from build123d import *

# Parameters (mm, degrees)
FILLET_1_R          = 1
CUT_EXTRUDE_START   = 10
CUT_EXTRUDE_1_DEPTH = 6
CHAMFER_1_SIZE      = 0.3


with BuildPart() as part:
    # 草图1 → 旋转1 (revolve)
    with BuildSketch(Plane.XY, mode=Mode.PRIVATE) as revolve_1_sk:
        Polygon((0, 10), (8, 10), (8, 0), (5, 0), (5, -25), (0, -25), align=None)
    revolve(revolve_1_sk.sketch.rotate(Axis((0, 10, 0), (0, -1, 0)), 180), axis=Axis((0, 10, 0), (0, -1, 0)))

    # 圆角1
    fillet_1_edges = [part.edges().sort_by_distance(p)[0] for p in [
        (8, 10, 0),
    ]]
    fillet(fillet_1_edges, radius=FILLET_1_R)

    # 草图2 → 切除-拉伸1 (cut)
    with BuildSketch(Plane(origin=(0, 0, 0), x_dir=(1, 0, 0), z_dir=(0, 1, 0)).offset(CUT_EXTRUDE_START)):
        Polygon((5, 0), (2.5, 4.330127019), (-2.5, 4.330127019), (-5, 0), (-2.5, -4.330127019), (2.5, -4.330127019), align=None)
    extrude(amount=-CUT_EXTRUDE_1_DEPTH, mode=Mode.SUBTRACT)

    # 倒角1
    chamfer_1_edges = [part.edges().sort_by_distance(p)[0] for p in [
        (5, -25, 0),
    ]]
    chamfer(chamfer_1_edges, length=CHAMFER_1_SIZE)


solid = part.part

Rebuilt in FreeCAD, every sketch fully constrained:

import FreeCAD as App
import Part
import Sketcher
from FreeCAD import Vector
Q = App.Units.Quantity


def edges_at(feature, points):
    """Names of the edges that pass closest to the given points."""
    edges = feature.Shape.Edges
    near = lambda p: min(range(len(edges)), key=lambda i: edges[i].distToShape(Part.Vertex(*p))[0])
    return sorted({f"Edge{near(p) + 1}" for p in points})


def add_polygon(sketch, points):
    """Adds a closed chain of lines whose ends are joined by coincident constraints."""
    first, n = sketch.GeometryCount, len(points)
    for a, b in zip(points, points[1:] + points[:1]):
        sketch.addGeometry(Part.LineSegment(App.Vector(*a, 0), App.Vector(*b, 0)), False)
    for i in range(n):
        sketch.addConstraint(Sketcher.Constraint("Coincident", first + i, 2, first + (i + 1) % n, 1))

doc = App.newDocument("Part")
body = doc.addObject("PartDesign::Body", "Body")

sketch1 = body.newObject("Sketcher::SketchObject", "Sketch")
sketch1.AttachmentSupport = (doc.getObject("XY_Plane"), [""])
sketch1.MapMode = "FlatFace"
add_polygon(sketch1, [(8, 10), (0, 10), (0, -25), (5, -25), (5, 0), (8, 0)])
sketch1.addConstraint([
    Sketcher.Constraint("Horizontal", 0),
    Sketcher.Constraint("Vertical", 1),
    Sketcher.Constraint("Horizontal", 2),
    Sketcher.Constraint("Vertical", 3),
    Sketcher.Constraint("Horizontal", 4),
    Sketcher.Constraint("Vertical", 5),
    Sketcher.Constraint("PointOnObject", 0, 2, -2),
    Sketcher.Constraint("PointOnObject", 3, 2, -1),
    Sketcher.Constraint("DistanceX", 0, 2, 0, 1, Q("8 mm")),
    Sketcher.Constraint("DistanceX", 2, 1, 2, 2, Q("5 mm")),
    Sketcher.Constraint("DistanceY", 1, 2, 1, 1, Q("35 mm")),
    Sketcher.Constraint("DistanceY", 3, 1, 3, 2, Q("25 mm")),
])
revolution = body.newObject("PartDesign::Revolution", "Revolution")
revolution.Profile = sketch1
revolution.ReferenceAxis = (sketch1, ["V_Axis"])
revolution.Angle = 360
doc.recompute()

fillet = body.newObject("PartDesign::Fillet", "Fillet")
fillet.Base = (revolution, edges_at(revolution, [(8, 10, 0)]))
fillet.Radius = 1

sketch2 = body.newObject("Sketcher::SketchObject", "Sketch001")
sketch2.AttachmentSupport = (doc.getObject("XZ_Plane"), [""])
sketch2.MapMode = "FlatFace"
sketch2.AttachmentOffset = App.Placement(Vector(0, 0, -10), App.Rotation())
add_polygon(sketch2, [(5, 0), (2, -4), (-2, -4), (-5, 0), (-2, 4), (2, 4)])
sketch2.addConstraint([
    Sketcher.Constraint("Horizontal", 1),
    Sketcher.Constraint("Horizontal", 4),
    Sketcher.Constraint("Symmetric", 0, 2, 3, 2, -1, 1),
    Sketcher.Constraint("Symmetric", 2, 2, 5, 2, -1, 1),
    Sketcher.Constraint("PointOnObject", 2, 2, -1),
    Sketcher.Constraint("Parallel", 2, 5),
    Sketcher.Constraint("Vertical", 1, 2, 3, 2),
    Sketcher.Constraint("DistanceX", 1, 2, 1, 1, Q("5 mm")),
    Sketcher.Constraint("Angle", 0, Q("-120 deg")),
    Sketcher.Constraint("Distance", 0, Q("5 mm")),
])
pocket1 = body.newObject("PartDesign::Pocket", "Pocket")
pocket1.Profile = sketch2
pocket1.Length = 6
pocket1.Reversed = True
doc.recompute()

chamfer = body.newObject("PartDesign::Chamfer", "Chamfer")
chamfer.Base = (pocket1, edges_at(pocket1, [(5, -25, 0)]))
chamfer.Size = 0.3

doc.recompute()
